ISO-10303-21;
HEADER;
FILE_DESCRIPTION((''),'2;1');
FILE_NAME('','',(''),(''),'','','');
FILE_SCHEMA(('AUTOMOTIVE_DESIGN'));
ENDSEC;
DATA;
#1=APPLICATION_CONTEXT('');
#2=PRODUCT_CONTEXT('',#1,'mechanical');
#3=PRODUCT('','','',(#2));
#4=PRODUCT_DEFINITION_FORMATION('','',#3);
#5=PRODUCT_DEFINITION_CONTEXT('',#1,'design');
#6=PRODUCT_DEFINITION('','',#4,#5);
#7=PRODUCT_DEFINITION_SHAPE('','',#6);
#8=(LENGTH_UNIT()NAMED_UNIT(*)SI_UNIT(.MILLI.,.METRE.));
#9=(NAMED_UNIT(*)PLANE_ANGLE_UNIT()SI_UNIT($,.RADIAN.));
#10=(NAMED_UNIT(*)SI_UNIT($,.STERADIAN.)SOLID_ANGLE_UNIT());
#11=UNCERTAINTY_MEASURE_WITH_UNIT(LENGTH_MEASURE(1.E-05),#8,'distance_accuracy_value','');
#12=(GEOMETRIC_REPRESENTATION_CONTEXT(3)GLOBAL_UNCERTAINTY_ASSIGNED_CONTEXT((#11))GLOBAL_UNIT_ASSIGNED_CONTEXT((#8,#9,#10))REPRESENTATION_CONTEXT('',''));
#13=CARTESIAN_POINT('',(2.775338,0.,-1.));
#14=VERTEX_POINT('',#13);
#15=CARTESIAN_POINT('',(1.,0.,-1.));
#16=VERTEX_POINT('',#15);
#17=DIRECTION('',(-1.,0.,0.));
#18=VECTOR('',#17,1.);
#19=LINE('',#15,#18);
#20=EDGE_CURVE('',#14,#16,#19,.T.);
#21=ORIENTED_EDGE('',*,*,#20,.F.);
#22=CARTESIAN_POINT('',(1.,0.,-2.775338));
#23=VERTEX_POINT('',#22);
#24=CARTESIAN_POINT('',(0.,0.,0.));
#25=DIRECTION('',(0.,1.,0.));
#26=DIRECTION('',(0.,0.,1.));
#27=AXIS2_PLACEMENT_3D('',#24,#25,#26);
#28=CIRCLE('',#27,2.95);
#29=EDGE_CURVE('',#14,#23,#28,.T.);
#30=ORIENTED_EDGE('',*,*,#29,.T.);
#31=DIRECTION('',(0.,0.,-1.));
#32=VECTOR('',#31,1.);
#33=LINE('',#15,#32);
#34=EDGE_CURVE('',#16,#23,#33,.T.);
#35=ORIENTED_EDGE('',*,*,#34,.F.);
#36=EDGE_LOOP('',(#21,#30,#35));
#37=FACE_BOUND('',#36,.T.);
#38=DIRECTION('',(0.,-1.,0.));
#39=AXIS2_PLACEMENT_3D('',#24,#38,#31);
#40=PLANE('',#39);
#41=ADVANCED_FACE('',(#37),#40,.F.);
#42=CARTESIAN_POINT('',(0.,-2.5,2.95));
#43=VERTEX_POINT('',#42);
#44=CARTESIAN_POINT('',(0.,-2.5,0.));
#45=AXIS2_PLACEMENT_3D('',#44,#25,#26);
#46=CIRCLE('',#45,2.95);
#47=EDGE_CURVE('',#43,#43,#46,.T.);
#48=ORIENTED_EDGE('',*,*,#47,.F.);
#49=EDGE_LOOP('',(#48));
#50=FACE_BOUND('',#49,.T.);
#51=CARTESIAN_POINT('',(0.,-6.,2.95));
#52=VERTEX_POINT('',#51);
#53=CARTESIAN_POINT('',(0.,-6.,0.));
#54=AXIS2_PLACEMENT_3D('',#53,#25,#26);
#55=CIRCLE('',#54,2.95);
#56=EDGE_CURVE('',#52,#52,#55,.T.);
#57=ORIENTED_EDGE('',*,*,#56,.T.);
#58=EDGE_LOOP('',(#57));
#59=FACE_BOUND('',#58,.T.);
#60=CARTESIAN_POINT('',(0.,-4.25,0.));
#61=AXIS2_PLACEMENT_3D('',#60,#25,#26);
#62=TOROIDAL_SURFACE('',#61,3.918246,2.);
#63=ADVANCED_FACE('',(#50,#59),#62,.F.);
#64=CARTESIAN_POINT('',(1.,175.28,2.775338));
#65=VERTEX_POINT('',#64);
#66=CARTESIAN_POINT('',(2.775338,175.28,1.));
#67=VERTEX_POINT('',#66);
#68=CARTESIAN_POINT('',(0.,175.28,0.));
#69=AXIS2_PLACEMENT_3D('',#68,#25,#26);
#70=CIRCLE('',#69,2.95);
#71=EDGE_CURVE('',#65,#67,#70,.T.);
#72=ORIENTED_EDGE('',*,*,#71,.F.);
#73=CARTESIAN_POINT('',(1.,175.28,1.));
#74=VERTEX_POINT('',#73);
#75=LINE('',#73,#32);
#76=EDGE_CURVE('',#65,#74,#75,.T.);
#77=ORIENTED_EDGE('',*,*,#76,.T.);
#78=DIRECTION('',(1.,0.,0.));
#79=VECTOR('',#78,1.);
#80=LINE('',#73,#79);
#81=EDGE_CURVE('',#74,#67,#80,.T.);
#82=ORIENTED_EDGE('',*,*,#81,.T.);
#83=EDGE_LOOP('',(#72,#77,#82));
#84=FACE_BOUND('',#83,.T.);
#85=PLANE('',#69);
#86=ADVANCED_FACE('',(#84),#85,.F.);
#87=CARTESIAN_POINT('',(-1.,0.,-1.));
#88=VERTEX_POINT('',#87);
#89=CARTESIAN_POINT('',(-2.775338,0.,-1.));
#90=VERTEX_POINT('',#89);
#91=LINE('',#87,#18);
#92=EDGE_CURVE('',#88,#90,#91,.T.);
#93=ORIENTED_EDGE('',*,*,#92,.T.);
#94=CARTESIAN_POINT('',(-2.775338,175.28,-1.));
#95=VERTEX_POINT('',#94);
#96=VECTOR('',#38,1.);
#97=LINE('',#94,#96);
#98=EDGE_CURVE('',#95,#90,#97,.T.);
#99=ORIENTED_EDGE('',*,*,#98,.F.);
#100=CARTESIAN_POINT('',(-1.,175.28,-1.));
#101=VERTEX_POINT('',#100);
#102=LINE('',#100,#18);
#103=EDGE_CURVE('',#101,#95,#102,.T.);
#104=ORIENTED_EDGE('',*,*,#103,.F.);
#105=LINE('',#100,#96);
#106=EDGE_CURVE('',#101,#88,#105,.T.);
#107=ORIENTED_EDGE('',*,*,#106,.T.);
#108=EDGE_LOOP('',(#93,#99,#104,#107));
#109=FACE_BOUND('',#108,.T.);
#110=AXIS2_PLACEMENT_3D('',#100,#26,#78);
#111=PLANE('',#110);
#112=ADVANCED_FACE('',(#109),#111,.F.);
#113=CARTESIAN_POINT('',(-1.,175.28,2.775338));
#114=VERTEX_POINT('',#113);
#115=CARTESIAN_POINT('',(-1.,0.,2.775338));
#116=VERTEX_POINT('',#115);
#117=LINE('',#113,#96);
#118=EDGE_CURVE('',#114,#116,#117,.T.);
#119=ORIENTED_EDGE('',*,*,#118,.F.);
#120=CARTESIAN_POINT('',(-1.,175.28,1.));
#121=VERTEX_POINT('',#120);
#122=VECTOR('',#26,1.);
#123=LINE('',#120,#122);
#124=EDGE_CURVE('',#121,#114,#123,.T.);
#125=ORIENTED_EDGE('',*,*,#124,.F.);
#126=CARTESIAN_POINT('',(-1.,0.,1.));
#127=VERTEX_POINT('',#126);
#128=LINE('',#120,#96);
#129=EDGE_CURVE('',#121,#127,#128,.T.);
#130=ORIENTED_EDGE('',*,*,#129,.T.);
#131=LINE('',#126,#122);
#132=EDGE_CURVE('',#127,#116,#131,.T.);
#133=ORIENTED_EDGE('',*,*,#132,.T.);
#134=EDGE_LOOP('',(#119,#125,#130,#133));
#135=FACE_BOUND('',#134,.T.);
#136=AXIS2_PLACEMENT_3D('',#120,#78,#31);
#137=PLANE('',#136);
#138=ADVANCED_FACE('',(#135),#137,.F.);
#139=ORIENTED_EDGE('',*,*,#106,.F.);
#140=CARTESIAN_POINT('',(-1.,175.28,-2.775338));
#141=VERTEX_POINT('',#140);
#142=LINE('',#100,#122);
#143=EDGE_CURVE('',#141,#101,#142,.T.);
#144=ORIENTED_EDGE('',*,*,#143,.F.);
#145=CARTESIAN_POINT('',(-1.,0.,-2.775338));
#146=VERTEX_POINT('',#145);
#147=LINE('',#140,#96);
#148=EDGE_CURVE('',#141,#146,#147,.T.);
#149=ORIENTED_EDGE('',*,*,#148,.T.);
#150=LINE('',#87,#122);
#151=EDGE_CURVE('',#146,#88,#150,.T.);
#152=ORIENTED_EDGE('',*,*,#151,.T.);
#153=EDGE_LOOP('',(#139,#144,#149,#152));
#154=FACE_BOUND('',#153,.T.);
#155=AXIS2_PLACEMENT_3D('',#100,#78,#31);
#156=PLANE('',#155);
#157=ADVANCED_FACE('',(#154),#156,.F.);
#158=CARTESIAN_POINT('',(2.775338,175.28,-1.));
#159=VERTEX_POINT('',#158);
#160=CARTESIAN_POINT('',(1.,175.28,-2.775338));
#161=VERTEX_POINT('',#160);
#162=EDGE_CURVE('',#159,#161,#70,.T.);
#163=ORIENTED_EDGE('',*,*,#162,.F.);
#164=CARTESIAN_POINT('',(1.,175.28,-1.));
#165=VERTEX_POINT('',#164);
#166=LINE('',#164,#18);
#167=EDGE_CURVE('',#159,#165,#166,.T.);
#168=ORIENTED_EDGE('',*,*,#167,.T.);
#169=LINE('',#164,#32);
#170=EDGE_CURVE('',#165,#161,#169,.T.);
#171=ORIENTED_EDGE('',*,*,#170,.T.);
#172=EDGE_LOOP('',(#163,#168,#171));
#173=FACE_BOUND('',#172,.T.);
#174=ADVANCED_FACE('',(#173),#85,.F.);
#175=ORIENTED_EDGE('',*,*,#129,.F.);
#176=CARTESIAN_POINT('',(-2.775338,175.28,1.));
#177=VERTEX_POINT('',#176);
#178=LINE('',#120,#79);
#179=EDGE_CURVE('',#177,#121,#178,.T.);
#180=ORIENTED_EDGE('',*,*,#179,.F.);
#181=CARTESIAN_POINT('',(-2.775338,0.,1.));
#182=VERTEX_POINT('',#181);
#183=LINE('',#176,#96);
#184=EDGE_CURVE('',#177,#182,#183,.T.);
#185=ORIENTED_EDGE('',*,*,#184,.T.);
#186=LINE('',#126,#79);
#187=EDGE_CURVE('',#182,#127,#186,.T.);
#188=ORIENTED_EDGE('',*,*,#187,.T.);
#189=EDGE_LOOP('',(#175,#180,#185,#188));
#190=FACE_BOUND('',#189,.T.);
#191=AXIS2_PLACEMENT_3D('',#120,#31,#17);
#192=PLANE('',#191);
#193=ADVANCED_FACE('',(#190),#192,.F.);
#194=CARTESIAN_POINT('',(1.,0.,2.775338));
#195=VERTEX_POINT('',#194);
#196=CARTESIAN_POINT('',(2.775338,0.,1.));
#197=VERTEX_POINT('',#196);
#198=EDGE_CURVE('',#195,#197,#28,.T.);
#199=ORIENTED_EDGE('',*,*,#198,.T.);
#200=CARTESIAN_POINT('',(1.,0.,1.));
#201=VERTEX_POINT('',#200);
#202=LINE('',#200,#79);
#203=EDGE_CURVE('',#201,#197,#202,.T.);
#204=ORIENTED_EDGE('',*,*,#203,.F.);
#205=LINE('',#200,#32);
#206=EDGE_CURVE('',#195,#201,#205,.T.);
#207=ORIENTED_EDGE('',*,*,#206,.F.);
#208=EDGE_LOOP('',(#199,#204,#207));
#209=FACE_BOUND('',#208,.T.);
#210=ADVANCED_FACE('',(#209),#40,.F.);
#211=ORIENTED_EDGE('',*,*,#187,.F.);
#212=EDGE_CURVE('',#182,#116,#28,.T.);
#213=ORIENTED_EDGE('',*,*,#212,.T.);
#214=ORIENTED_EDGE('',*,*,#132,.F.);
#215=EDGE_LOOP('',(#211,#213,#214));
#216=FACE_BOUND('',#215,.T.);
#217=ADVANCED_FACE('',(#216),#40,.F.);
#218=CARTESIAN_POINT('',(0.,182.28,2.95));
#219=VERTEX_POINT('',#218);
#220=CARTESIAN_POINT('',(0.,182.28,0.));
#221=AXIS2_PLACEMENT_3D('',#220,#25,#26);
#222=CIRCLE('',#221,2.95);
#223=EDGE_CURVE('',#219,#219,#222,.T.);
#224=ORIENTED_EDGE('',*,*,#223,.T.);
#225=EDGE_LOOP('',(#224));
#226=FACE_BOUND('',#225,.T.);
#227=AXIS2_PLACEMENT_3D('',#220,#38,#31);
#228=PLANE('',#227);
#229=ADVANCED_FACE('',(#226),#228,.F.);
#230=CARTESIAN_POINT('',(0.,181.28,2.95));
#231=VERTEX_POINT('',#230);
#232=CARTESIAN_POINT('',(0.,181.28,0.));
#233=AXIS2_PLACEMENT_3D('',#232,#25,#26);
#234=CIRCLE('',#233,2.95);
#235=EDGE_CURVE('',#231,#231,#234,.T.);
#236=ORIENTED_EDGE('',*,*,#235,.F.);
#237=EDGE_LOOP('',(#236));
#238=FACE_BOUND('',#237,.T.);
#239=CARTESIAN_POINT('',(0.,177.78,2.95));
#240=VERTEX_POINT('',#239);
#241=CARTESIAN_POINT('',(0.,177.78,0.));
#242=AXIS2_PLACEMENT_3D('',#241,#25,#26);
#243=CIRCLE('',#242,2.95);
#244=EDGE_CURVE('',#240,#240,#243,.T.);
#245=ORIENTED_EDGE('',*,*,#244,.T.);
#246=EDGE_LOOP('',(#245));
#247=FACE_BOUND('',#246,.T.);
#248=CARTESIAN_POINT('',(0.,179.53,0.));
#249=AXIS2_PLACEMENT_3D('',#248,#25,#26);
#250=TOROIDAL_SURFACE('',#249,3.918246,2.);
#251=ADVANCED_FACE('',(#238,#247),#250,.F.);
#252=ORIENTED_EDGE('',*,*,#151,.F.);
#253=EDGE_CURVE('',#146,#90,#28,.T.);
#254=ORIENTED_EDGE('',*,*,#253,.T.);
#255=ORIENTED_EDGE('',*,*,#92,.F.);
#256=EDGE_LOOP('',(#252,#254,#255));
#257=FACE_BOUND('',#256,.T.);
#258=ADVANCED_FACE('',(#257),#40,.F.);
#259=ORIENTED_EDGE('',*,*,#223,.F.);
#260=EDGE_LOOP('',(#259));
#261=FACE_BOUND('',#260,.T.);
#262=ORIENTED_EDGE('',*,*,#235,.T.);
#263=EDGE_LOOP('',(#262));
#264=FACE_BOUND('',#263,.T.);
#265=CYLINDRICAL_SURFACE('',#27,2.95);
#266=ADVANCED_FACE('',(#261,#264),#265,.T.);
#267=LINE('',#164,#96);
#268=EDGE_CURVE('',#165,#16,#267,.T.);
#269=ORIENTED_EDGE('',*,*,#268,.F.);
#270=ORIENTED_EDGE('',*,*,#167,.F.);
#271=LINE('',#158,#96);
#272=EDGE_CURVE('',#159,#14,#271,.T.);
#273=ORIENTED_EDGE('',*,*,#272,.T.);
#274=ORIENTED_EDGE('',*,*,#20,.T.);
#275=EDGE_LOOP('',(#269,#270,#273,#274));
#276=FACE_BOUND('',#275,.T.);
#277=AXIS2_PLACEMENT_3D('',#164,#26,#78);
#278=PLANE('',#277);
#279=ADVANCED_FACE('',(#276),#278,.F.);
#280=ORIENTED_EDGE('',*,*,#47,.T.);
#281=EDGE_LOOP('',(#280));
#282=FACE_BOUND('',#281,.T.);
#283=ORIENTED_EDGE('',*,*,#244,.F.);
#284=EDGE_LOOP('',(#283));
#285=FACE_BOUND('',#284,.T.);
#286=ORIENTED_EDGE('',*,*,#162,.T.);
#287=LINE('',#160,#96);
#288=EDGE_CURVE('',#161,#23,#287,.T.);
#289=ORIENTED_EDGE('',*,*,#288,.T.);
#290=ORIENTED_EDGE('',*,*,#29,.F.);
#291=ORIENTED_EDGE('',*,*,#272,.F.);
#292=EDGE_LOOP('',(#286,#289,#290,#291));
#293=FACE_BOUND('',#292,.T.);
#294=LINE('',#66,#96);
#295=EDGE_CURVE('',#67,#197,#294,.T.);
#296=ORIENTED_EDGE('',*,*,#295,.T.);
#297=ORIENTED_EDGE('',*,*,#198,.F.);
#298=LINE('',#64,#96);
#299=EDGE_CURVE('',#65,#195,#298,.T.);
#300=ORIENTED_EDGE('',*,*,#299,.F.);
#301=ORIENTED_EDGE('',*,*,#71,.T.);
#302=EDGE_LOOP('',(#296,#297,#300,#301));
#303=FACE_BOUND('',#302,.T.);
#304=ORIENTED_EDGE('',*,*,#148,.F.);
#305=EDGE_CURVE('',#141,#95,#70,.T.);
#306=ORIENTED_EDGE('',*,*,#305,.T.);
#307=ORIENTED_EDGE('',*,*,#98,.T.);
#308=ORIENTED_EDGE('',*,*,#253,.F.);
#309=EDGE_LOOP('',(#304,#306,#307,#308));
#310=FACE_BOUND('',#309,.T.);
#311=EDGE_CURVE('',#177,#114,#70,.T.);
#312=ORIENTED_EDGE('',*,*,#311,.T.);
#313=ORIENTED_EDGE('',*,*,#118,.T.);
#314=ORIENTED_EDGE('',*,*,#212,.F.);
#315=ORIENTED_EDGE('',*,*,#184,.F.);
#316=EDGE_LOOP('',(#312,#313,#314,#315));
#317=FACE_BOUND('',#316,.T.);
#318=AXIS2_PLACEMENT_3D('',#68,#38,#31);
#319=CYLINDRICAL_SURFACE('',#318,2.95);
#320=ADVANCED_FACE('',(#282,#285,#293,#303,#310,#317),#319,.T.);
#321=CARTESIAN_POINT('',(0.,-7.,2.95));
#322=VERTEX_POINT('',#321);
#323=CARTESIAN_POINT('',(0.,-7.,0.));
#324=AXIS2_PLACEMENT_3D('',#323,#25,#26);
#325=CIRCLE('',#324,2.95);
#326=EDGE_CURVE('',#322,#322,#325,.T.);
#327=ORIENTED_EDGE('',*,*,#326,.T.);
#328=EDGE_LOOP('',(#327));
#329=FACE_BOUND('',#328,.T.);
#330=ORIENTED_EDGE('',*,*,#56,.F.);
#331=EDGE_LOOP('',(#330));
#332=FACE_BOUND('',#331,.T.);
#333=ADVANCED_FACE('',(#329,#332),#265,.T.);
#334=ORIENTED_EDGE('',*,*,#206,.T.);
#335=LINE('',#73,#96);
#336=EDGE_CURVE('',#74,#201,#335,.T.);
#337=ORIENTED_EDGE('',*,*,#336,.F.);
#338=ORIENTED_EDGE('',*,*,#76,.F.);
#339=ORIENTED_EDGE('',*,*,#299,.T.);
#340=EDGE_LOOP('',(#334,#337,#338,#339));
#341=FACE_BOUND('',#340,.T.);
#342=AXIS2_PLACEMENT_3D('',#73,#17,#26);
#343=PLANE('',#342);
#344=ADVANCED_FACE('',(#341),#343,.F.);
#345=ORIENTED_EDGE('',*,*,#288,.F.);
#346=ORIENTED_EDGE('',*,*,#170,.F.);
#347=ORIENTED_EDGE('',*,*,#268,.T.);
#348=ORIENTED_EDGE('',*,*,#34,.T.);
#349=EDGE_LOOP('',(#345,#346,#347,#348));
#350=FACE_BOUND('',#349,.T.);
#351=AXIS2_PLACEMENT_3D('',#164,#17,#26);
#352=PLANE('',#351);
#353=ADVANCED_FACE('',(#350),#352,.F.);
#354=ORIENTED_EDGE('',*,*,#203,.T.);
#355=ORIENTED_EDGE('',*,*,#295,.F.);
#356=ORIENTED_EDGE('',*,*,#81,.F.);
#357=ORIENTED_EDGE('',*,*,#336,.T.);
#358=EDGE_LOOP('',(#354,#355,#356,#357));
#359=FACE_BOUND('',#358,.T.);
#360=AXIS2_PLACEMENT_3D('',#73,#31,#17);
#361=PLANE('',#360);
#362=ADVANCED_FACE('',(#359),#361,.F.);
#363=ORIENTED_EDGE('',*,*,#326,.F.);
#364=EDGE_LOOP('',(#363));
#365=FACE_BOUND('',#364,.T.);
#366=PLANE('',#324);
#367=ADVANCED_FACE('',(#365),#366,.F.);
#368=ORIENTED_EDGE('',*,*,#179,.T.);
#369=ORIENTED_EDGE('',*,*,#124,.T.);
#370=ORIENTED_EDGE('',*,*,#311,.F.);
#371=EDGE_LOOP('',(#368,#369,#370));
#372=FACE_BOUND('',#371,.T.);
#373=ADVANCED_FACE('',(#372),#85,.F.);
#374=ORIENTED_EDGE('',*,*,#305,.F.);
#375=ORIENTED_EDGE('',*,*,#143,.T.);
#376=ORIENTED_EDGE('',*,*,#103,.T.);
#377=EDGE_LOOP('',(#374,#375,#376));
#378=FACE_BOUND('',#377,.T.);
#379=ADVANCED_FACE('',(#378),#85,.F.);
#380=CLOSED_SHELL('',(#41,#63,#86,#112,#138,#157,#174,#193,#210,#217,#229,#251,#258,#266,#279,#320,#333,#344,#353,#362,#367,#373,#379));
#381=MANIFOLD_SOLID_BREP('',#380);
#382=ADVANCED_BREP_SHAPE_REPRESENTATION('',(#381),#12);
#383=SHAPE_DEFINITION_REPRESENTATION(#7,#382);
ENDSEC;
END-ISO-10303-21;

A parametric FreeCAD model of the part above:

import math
import FreeCAD as App
import Part
import Sketcher
from FreeCAD import Vector
Q = App.Units.Quantity

doc = App.newDocument("Part")
body = doc.addObject("PartDesign::Body", "Body")

# Sketch on XZ plane
sketch1 = doc.addObject("Sketcher::SketchObject", "Sketch")
body.addObject(sketch1)
sketch1.AttachmentSupport = (doc.XZ_Plane, [""])
sketch1.MapMode = "FlatFace"
sketch1.addGeometry(Part.LineSegment(Vector(1, -1, 0), Vector(1, -2.8, 0)), False)
sketch1.addGeometry(Part.ArcOfCircle(Part.Circle(Vector(0, 0, 0), Vector(0, 0, 1), 3), math.radians(-110), math.radians(-70)), False)
sketch1.addGeometry(Part.LineSegment(Vector(-1, -2.8, 0), Vector(-1, -1, 0)), False)
sketch1.addGeometry(Part.LineSegment(Vector(-1, -1, 0), Vector(-2.8, -1, 0)), False)
sketch1.addGeometry(Part.ArcOfCircle(Part.Circle(Vector(0, 0, 0), Vector(0, 0, 1), 3), math.radians(160), math.radians(200)), False)
sketch1.addGeometry(Part.LineSegment(Vector(-2.8, 1, 0), Vector(-1, 1, 0)), False)
sketch1.addGeometry(Part.LineSegment(Vector(-1, 1, 0), Vector(-1, 2.8, 0)), False)
sketch1.addGeometry(Part.ArcOfCircle(Part.Circle(Vector(0, 0, 0), Vector(0, 0, 1), 3), math.radians(70), math.radians(110)), False)
sketch1.addGeometry(Part.LineSegment(Vector(1, 2.8, 0), Vector(1, 1, 0)), False)
sketch1.addGeometry(Part.LineSegment(Vector(1, 1, 0), Vector(2.8, 1, 0)), False)
sketch1.addGeometry(Part.ArcOfCircle(Part.Circle(Vector(0, 0, 0), Vector(0, 0, 1), 3), math.radians(-20), math.radians(20)), False)
sketch1.addGeometry(Part.LineSegment(Vector(2.8, -1, 0), Vector(1, -1, 0)), False)
sketch1.addConstraint(Sketcher.Constraint("Coincident", 0, 2, 1, 2))
sketch1.addConstraint(Sketcher.Constraint("Coincident", 1, 1, 2, 1))
sketch1.addConstraint(Sketcher.Constraint("Coincident", 2, 2, 3, 1))
sketch1.addConstraint(Sketcher.Constraint("Coincident", 3, 2, 4, 2))
sketch1.addConstraint(Sketcher.Constraint("Coincident", 4, 1, 5, 1))
sketch1.addConstraint(Sketcher.Constraint("Coincident", 5, 2, 6, 1))
sketch1.addConstraint(Sketcher.Constraint("Coincident", 6, 2, 7, 2))
sketch1.addConstraint(Sketcher.Constraint("Coincident", 7, 1, 8, 1))
sketch1.addConstraint(Sketcher.Constraint("Coincident", 8, 2, 9, 1))
sketch1.addConstraint(Sketcher.Constraint("Coincident", 9, 2, 10, 2))
sketch1.addConstraint(Sketcher.Constraint("Coincident", 10, 1, 11, 1))
sketch1.addConstraint(Sketcher.Constraint("Coincident", 11, 2, 0, 1))
sketch1.addConstraint(Sketcher.Constraint("Vertical", 0))
sketch1.addConstraint(Sketcher.Constraint("Vertical", 2))
sketch1.addConstraint(Sketcher.Constraint("Horizontal", 3))
sketch1.addConstraint(Sketcher.Constraint("Horizontal", 5))
sketch1.addConstraint(Sketcher.Constraint("Vertical", 6))
sketch1.addConstraint(Sketcher.Constraint("Vertical", 8))
sketch1.addConstraint(Sketcher.Constraint("Horizontal", 9))
sketch1.addConstraint(Sketcher.Constraint("Horizontal", 11))
sketch1.addConstraint(Sketcher.Constraint("Coincident", 1, 3, -1, 1))
sketch1.addConstraint(Sketcher.Constraint("Coincident", 4, 3, -1, 1))
sketch1.addConstraint(Sketcher.Constraint("Coincident", 7, 3, -1, 1))
sketch1.addConstraint(Sketcher.Constraint("Coincident", 10, 3, -1, 1))
sketch1.addConstraint(Sketcher.Constraint("Equal", 1, 4))
sketch1.addConstraint(Sketcher.Constraint("Equal", 4, 7))
sketch1.addConstraint(Sketcher.Constraint("Equal", 7, 10))
sketch1.addConstraint(Sketcher.Constraint("Symmetric", 2, 2, 8, 2, -1, 1))
sketch1.addConstraint(Sketcher.Constraint("Symmetric", 5, 2, 11, 2, -1, 1))
sketch1.addConstraint(Sketcher.Constraint("Symmetric", 5, 2, 8, 2, -2))
sketch1.addConstraint(Sketcher.Constraint("Equal", 11, 0))
sketch1.addConstraint(Sketcher.Constraint("DistanceX", -1, 1, 0, 2, Q("1 mm")))
sketch1.addConstraint(Sketcher.Constraint("Radius", 1, Q("2.950003 mm")))
pad1 = doc.addObject("PartDesign::Pad", "Pad")
body.addObject(pad1)
pad1.Profile = sketch1
pad1.Length = 175.28
pad1.Reversed = True

# Sketch on YZ plane
sketch2 = doc.addObject("Sketcher::SketchObject", "Sketch001")
body.addObject(sketch2)
sketch2.AttachmentSupport = (doc.YZ_Plane, [""])
sketch2.MapMode = "FlatFace"
sketch2.addGeometry(Part.LineSegment(Vector(182.3, 0, 0), Vector(175.3, 0, 0)), False)
sketch2.addGeometry(Part.LineSegment(Vector(175.3, 0, 0), Vector(175.3, -3, 0)), False)
sketch2.addGeometry(Part.LineSegment(Vector(175.3, -3, 0), Vector(177.8, -3, 0)), False)
sketch2.addGeometry(Part.ArcOfCircle(Part.Circle(Vector(179.5, -3.9, 0), Vector(0, 0, 1), 2), math.radians(29), math.radians(151)), False)
sketch2.addGeometry(Part.LineSegment(Vector(181.3, -3, 0), Vector(182.3, -3, 0)), False)
sketch2.addGeometry(Part.LineSegment(Vector(182.3, -3, 0), Vector(182.3, 0, 0)), False)
sketch2.addGeometry(Part.LineSegment(Vector(0, 0, 0), Vector(-7, 0, 0)), False)
sketch2.addGeometry(Part.LineSegment(Vector(-7, 0, 0), Vector(-7, -3, 0)), False)
sketch2.addGeometry(Part.LineSegment(Vector(-7, -3, 0), Vector(-6, -3, 0)), False)
sketch2.addGeometry(Part.ArcOfCircle(Part.Circle(Vector(-4.2, -3.9, 0), Vector(0, 0, 1), 2), math.radians(29), math.radians(151)), False)
sketch2.addGeometry(Part.LineSegment(Vector(-2.5, -3, 0), Vector(0, -3, 0)), False)
sketch2.addGeometry(Part.LineSegment(Vector(0, -3, 0), Vector(0, 0, 0)), False)
sketch2.addConstraint(Sketcher.Constraint("Coincident", 0, 2, 1, 1))
sketch2.addConstraint(Sketcher.Constraint("Coincident", 1, 2, 2, 1))
sketch2.addConstraint(Sketcher.Constraint("Coincident", 2, 2, 3, 2))
sketch2.addConstraint(Sketcher.Constraint("Coincident", 3, 1, 4, 1))
sketch2.addConstraint(Sketcher.Constraint("Coincident", 4, 2, 5, 1))
sketch2.addConstraint(Sketcher.Constraint("Coincident", 5, 2, 0, 1))
sketch2.addConstraint(Sketcher.Constraint("Coincident", 6, 2, 7, 1))
sketch2.addConstraint(Sketcher.Constraint("Coincident", 7, 2, 8, 1))
sketch2.addConstraint(Sketcher.Constraint("Coincident", 8, 2, 9, 2))
sketch2.addConstraint(Sketcher.Constraint("Coincident", 9, 1, 10, 1))
sketch2.addConstraint(Sketcher.Constraint("Coincident", 10, 2, 11, 1))
sketch2.addConstraint(Sketcher.Constraint("Coincident", 11, 2, 6, 1))
sketch2.addConstraint(Sketcher.Constraint("Horizontal", 0))
sketch2.addConstraint(Sketcher.Constraint("Vertical", 1))
sketch2.addConstraint(Sketcher.Constraint("Horizontal", 2))
sketch2.addConstraint(Sketcher.Constraint("Horizontal", 4))
sketch2.addConstraint(Sketcher.Constraint("Vertical", 5))
sketch2.addConstraint(Sketcher.Constraint("Horizontal", 6))
sketch2.addConstraint(Sketcher.Constraint("Vertical", 7))
sketch2.addConstraint(Sketcher.Constraint("Horizontal", 8))
sketch2.addConstraint(Sketcher.Constraint("Horizontal", 10))
sketch2.addConstraint(Sketcher.Constraint("Vertical", 11))
sketch2.addConstraint(Sketcher.Constraint("Coincident", 11, 2, -1, 1))
sketch2.addConstraint(Sketcher.Constraint("Equal", 3, 9))
sketch2.addConstraint(Sketcher.Constraint("PointOnObject", 0, 2, -1))
sketch2.addConstraint(Sketcher.Constraint("Horizontal", 3, 3, 9, 3))
sketch2.addConstraint(Sketcher.Constraint("Horizontal", 2, 2, 3, 1))
sketch2.addConstraint(Sketcher.Constraint("Horizontal", 4, 2, 7, 2))
sketch2.addConstraint(Sketcher.Constraint("Horizontal", 8, 2, 9, 1))
sketch2.addConstraint(Sketcher.Constraint("Equal", 0, 6))
sketch2.addConstraint(Sketcher.Constraint("Equal", 4, 8))
sketch2.addConstraint(Sketcher.Constraint("Radius", 3, Q("2 mm")))
sketch2.addConstraint(Sketcher.Constraint("DistanceX", 0, 2, 0, 1, Q("7 mm")))
sketch2.addConstraint(Sketcher.Constraint("DistanceX", 4, 1, 4, 2, Q("1 mm")))
sketch2.addConstraint(Sketcher.Constraint("DistanceX", 2, 1, 2, 2, Q("2.5 mm")))
sketch2.addConstraint(Sketcher.Constraint("DistanceY", 1, 2, 1, 1, Q("2.95 mm")))
sketch2.addConstraint(Sketcher.Constraint("DistanceX", -1, 1, 3, 3, Q("179.53 mm")))
revolution = doc.addObject("PartDesign::Revolution", "Revolution")
body.addObject(revolution)
revolution.Profile = sketch2
revolution.ReferenceAxis = (sketch2, ["H_Axis"])
revolution.Angle = 360

doc.recompute()
